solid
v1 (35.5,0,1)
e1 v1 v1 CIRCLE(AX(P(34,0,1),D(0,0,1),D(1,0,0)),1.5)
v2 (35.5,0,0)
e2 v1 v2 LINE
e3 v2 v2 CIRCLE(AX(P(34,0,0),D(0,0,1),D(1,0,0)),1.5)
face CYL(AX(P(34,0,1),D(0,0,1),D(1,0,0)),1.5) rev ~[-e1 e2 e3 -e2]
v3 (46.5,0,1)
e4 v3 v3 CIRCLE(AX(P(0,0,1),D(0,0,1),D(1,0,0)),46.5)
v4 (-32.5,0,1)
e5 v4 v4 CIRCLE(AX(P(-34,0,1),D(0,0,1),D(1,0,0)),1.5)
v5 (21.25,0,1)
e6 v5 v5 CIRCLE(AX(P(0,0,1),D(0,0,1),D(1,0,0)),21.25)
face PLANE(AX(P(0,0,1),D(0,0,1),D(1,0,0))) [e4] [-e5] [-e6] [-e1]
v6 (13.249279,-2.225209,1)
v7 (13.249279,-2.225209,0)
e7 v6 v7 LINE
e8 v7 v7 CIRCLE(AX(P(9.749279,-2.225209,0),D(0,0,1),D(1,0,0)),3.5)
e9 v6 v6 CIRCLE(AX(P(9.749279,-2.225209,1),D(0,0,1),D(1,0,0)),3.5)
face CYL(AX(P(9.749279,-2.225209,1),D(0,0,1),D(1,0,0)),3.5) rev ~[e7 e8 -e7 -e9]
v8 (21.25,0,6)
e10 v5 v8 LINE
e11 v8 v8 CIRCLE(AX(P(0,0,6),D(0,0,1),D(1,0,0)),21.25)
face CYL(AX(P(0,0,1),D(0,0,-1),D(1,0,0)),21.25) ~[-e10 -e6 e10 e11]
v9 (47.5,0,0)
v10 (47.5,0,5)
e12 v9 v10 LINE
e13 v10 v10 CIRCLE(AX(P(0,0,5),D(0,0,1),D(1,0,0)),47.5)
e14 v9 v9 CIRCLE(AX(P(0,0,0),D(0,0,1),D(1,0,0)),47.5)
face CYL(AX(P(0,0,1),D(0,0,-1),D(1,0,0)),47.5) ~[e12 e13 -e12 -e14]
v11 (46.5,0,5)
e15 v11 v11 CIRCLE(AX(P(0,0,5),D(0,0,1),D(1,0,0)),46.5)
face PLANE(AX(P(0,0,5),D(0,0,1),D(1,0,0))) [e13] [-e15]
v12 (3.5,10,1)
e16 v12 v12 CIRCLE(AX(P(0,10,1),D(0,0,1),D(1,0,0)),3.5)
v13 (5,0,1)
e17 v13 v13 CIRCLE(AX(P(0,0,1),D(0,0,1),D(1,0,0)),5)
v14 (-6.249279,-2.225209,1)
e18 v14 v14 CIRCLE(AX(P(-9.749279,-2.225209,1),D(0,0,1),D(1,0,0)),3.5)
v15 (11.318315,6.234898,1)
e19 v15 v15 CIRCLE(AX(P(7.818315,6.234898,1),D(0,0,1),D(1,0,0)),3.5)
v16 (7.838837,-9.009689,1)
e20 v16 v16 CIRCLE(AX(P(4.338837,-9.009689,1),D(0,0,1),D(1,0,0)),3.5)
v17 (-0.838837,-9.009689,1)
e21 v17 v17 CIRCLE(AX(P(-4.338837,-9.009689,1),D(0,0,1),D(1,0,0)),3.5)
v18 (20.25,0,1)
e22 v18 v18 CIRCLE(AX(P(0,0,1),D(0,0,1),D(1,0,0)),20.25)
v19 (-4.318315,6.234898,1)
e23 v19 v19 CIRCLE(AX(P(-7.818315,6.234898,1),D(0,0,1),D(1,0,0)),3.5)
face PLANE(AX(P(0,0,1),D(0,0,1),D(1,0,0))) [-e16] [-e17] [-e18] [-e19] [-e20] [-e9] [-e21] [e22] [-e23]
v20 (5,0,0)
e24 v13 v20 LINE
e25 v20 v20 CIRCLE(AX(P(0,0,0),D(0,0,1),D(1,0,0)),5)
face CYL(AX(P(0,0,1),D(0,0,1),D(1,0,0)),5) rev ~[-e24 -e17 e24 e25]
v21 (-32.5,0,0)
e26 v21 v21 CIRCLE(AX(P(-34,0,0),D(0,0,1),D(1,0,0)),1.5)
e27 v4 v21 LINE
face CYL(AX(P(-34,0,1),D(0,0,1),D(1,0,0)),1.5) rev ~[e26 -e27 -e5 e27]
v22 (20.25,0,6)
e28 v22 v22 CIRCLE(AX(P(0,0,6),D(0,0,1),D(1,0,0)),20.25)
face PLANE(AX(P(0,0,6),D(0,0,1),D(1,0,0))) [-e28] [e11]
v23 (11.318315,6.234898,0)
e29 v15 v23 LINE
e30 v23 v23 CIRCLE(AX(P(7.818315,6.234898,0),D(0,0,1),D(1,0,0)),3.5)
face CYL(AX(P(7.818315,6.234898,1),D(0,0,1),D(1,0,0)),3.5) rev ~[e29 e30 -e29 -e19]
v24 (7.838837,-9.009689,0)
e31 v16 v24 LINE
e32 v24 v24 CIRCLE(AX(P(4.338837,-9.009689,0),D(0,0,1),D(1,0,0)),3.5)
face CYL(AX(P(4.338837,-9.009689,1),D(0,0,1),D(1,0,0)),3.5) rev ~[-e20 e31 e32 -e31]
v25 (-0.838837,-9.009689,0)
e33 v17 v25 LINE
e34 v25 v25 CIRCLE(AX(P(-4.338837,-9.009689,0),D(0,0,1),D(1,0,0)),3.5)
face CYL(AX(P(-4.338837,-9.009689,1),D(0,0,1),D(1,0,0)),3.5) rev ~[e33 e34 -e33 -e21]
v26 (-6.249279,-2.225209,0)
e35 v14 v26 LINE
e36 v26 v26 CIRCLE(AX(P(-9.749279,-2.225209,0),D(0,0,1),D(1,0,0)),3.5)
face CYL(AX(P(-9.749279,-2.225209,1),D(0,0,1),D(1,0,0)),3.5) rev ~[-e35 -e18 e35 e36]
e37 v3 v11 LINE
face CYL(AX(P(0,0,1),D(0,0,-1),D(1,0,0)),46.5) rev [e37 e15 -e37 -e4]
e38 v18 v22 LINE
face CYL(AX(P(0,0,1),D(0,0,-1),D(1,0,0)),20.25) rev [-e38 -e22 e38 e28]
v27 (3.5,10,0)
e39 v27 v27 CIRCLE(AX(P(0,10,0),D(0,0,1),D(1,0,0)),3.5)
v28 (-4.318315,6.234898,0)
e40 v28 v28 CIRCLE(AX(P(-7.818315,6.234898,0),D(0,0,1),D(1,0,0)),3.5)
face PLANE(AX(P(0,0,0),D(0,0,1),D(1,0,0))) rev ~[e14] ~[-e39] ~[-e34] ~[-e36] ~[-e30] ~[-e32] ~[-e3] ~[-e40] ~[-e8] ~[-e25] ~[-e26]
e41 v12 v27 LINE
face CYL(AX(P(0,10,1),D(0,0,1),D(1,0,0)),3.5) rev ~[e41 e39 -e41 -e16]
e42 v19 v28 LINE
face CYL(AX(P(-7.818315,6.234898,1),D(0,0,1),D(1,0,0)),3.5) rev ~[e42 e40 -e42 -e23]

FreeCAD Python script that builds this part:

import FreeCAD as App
import Part
import Sketcher
from FreeCAD import Vector
Q = App.Units.Quantity

doc = App.newDocument("Part")
body = doc.addObject("PartDesign::Body", "Body")

# Sketch on XY plane
sketch1 = body.newObject("Sketcher::SketchObject", "Sketch")
sketch1.AttachmentSupport = (doc.getObject("XY_Plane"), [""])
sketch1.MapMode = "FlatFace"
sketch1.addGeometry(Part.Circle(Vector(0, 0, 0), Vector(0, 0, 1), 48), False)
sketch1.addConstraint(Sketcher.Constraint("Coincident", 0, 3, -1, 1))
sketch1.addConstraint(Sketcher.Constraint("Diameter", 0, Q("95 mm")))
pad1 = body.newObject("PartDesign::Pad", "Pad")
pad1.Profile = sketch1
pad1.Length = 1

# Sketch on XY plane
sketch2 = body.newObject("Sketcher::SketchObject", "Sketch001")
sketch2.AttachmentSupport = (doc.getObject("XY_Plane"), [""])
sketch2.MapMode = "FlatFace"
sketch2.AttachmentOffset = App.Placement(Vector(0, 0, 1), App.Rotation())
sketch2.addGeometry(Part.Circle(Vector(0, 0, 0), Vector(0, 0, 1), 48), False)
sketch2.addGeometry(Part.Circle(Vector(0, 0, 0), Vector(0, 0, 1), 46), False)
sketch2.addConstraint(Sketcher.Constraint("Coincident", 0, 3, -1, 1))
sketch2.addConstraint(Sketcher.Constraint("Coincident", 1, 3, -1, 1))
sketch2.addConstraint(Sketcher.Constraint("Diameter", 0, Q("95 mm")))
sketch2.addConstraint(Sketcher.Constraint("Diameter", 1, Q("93 mm")))
pad2 = body.newObject("PartDesign::Pad", "Pad001")
pad2.Profile = sketch2
pad2.Length = 4

# Sketch on XY plane
sketch3 = body.newObject("Sketcher::SketchObject", "Sketch002")
sketch3.AttachmentSupport = (doc.getObject("XY_Plane"), [""])
sketch3.MapMode = "FlatFace"
sketch3.AttachmentOffset = App.Placement(Vector(0, 0, 1), App.Rotation())
sketch3.addGeometry(Part.Circle(Vector(0, 0, 0), Vector(0, 0, 1), 21), False)
sketch3.addGeometry(Part.Circle(Vector(0, 0, 0), Vector(0, 0, 1), 20), False)
sketch3.addConstraint(Sketcher.Constraint("Coincident", 0, 3, -1, 1))
sketch3.addConstraint(Sketcher.Constraint("Coincident", 1, 3, -1, 1))
sketch3.addConstraint(Sketcher.Constraint("Diameter", 0, Q("42.5 mm")))
sketch3.addConstraint(Sketcher.Constraint("Diameter", 1, Q("40.5 mm")))
pad3 = body.newObject("PartDesign::Pad", "Pad002")
pad3.Profile = sketch3
pad3.Length = 5

# Sketch on XY plane
sketch4 = body.newObject("Sketcher::SketchObject", "Sketch003")
sketch4.AttachmentSupport = (doc.getObject("XY_Plane"), [""])
sketch4.MapMode = "FlatFace"
sketch4.AttachmentOffset = App.Placement(Vector(0, 0, 1), App.Rotation())
sketch4.addGeometry(Part.Circle(Vector(-7.8, 6.2, 0), Vector(0, 0, 1), 3.5), False)
sketch4.addGeometry(Part.Circle(Vector(-9.7, -2.2, 0), Vector(0, 0, 1), 3.5), False)
sketch4.addGeometry(Part.Circle(Vector(-4.3, -9, 0), Vector(0, 0, 1), 3.5), False)
sketch4.addGeometry(Part.Circle(Vector(4.3, -9, 0), Vector(0, 0, 1), 3.5), False)
sketch4.addGeometry(Part.Circle(Vector(9.7, -2.2, 0), Vector(0, 0, 1), 3.5), False)
sketch4.addGeometry(Part.Circle(Vector(7.8, 6.2, 0), Vector(0, 0, 1), 3.5), False)
sketch4.addGeometry(Part.Circle(Vector(0, 10, 0), Vector(0, 0, 1), 3.5), False)
sketch4.addGeometry(Part.Circle(Vector(0, 0, 0), Vector(0, 0, 1), 5), False)
sketch4.addConstraint(Sketcher.Constraint("Coincident", 7, 3, -1, 1))
sketch4.addConstraint(Sketcher.Constraint("Equal", 0, 1))
sketch4.addConstraint(Sketcher.Constraint("Equal", 1, 2))
sketch4.addConstraint(Sketcher.Constraint("Equal", 2, 3))
sketch4.addConstraint(Sketcher.Constraint("Equal", 3, 4))
sketch4.addConstraint(Sketcher.Constraint("Equal", 4, 5))
sketch4.addConstraint(Sketcher.Constraint("Equal", 5, 6))
sketch4.addConstraint(Sketcher.Constraint("Symmetric", 2, 3, 3, 3, -2))
sketch4.addConstraint(Sketcher.Constraint("Symmetric", 1, 3, 4, 3, -2))
sketch4.addConstraint(Sketcher.Constraint("Symmetric", 0, 3, 5, 3, -2))
sketch4.addConstraint(Sketcher.Constraint("PointOnObject", 6, 3, -2))
sketch4.addConstraint(Sketcher.Constraint("Diameter", 0, Q("7 mm")))
sketch4.addConstraint(Sketcher.Constraint("Diameter", 7, Q("10 mm")))
sketch4.addConstraint(Sketcher.Constraint("DistanceY", -1, 1, 6, 3, Q("10 mm")))
sketch4.addConstraint(Sketcher.Constraint("DistanceY", -1, 1, 0, 3, Q("6.234898 mm")))
sketch4.addConstraint(Sketcher.Constraint("DistanceX", 1, 3, -1, 1, Q("9.749279 mm")))
sketch4.addConstraint(Sketcher.Constraint("DistanceY", 1, 3, -1, 1, Q("2.225209 mm")))
sketch4.addConstraint(Sketcher.Constraint("DistanceY", 2, 3, -1, 1, Q("9.009689 mm")))
sketch4.addConstraint(Sketcher.Constraint("DistanceX", 1, 3, 2, 3, Q("5.410442 mm")))
sketch4.addConstraint(Sketcher.Constraint("DistanceX", 0, 3, 2, 3, Q("3.479478 mm")))
pocket1 = body.newObject("PartDesign::Pocket", "Pocket")
pocket1.Profile = sketch4
pocket1.Length = 25

# Sketch on XY plane
sketch5 = body.newObject("Sketcher::SketchObject", "Sketch004")
sketch5.AttachmentSupport = (doc.getObject("XY_Plane"), [""])
sketch5.MapMode = "FlatFace"
sketch5.AttachmentOffset = App.Placement(Vector(0, 0, 1), App.Rotation())
sketch5.addGeometry(Part.Circle(Vector(-34, 0, 0), Vector(0, 0, 1), 1.5), False)
sketch5.addGeometry(Part.Circle(Vector(34, 0, 0), Vector(0, 0, 1), 1.5), False)
sketch5.addConstraint(Sketcher.Constraint("Equal", 0, 1))
sketch5.addConstraint(Sketcher.Constraint("Symmetric", 0, 3, 1, 3, -1, 1))
sketch5.addConstraint(Sketcher.Constraint("PointOnObject", 0, 3, -1))
sketch5.addConstraint(Sketcher.Constraint("Diameter", 0, Q("3 mm")))
sketch5.addConstraint(Sketcher.Constraint("DistanceX", 0, 3, -1, 1, Q("34 mm")))
pocket2 = body.newObject("PartDesign::Pocket", "Pocket001")
pocket2.Profile = sketch5
pocket2.Length = 25
body2 = doc.addObject("PartDesign::Body", "Body001")
doc.recompute()

body2.BaseFeature = body
doc.recompute()
body.Visibility = False

doc.recompute()
